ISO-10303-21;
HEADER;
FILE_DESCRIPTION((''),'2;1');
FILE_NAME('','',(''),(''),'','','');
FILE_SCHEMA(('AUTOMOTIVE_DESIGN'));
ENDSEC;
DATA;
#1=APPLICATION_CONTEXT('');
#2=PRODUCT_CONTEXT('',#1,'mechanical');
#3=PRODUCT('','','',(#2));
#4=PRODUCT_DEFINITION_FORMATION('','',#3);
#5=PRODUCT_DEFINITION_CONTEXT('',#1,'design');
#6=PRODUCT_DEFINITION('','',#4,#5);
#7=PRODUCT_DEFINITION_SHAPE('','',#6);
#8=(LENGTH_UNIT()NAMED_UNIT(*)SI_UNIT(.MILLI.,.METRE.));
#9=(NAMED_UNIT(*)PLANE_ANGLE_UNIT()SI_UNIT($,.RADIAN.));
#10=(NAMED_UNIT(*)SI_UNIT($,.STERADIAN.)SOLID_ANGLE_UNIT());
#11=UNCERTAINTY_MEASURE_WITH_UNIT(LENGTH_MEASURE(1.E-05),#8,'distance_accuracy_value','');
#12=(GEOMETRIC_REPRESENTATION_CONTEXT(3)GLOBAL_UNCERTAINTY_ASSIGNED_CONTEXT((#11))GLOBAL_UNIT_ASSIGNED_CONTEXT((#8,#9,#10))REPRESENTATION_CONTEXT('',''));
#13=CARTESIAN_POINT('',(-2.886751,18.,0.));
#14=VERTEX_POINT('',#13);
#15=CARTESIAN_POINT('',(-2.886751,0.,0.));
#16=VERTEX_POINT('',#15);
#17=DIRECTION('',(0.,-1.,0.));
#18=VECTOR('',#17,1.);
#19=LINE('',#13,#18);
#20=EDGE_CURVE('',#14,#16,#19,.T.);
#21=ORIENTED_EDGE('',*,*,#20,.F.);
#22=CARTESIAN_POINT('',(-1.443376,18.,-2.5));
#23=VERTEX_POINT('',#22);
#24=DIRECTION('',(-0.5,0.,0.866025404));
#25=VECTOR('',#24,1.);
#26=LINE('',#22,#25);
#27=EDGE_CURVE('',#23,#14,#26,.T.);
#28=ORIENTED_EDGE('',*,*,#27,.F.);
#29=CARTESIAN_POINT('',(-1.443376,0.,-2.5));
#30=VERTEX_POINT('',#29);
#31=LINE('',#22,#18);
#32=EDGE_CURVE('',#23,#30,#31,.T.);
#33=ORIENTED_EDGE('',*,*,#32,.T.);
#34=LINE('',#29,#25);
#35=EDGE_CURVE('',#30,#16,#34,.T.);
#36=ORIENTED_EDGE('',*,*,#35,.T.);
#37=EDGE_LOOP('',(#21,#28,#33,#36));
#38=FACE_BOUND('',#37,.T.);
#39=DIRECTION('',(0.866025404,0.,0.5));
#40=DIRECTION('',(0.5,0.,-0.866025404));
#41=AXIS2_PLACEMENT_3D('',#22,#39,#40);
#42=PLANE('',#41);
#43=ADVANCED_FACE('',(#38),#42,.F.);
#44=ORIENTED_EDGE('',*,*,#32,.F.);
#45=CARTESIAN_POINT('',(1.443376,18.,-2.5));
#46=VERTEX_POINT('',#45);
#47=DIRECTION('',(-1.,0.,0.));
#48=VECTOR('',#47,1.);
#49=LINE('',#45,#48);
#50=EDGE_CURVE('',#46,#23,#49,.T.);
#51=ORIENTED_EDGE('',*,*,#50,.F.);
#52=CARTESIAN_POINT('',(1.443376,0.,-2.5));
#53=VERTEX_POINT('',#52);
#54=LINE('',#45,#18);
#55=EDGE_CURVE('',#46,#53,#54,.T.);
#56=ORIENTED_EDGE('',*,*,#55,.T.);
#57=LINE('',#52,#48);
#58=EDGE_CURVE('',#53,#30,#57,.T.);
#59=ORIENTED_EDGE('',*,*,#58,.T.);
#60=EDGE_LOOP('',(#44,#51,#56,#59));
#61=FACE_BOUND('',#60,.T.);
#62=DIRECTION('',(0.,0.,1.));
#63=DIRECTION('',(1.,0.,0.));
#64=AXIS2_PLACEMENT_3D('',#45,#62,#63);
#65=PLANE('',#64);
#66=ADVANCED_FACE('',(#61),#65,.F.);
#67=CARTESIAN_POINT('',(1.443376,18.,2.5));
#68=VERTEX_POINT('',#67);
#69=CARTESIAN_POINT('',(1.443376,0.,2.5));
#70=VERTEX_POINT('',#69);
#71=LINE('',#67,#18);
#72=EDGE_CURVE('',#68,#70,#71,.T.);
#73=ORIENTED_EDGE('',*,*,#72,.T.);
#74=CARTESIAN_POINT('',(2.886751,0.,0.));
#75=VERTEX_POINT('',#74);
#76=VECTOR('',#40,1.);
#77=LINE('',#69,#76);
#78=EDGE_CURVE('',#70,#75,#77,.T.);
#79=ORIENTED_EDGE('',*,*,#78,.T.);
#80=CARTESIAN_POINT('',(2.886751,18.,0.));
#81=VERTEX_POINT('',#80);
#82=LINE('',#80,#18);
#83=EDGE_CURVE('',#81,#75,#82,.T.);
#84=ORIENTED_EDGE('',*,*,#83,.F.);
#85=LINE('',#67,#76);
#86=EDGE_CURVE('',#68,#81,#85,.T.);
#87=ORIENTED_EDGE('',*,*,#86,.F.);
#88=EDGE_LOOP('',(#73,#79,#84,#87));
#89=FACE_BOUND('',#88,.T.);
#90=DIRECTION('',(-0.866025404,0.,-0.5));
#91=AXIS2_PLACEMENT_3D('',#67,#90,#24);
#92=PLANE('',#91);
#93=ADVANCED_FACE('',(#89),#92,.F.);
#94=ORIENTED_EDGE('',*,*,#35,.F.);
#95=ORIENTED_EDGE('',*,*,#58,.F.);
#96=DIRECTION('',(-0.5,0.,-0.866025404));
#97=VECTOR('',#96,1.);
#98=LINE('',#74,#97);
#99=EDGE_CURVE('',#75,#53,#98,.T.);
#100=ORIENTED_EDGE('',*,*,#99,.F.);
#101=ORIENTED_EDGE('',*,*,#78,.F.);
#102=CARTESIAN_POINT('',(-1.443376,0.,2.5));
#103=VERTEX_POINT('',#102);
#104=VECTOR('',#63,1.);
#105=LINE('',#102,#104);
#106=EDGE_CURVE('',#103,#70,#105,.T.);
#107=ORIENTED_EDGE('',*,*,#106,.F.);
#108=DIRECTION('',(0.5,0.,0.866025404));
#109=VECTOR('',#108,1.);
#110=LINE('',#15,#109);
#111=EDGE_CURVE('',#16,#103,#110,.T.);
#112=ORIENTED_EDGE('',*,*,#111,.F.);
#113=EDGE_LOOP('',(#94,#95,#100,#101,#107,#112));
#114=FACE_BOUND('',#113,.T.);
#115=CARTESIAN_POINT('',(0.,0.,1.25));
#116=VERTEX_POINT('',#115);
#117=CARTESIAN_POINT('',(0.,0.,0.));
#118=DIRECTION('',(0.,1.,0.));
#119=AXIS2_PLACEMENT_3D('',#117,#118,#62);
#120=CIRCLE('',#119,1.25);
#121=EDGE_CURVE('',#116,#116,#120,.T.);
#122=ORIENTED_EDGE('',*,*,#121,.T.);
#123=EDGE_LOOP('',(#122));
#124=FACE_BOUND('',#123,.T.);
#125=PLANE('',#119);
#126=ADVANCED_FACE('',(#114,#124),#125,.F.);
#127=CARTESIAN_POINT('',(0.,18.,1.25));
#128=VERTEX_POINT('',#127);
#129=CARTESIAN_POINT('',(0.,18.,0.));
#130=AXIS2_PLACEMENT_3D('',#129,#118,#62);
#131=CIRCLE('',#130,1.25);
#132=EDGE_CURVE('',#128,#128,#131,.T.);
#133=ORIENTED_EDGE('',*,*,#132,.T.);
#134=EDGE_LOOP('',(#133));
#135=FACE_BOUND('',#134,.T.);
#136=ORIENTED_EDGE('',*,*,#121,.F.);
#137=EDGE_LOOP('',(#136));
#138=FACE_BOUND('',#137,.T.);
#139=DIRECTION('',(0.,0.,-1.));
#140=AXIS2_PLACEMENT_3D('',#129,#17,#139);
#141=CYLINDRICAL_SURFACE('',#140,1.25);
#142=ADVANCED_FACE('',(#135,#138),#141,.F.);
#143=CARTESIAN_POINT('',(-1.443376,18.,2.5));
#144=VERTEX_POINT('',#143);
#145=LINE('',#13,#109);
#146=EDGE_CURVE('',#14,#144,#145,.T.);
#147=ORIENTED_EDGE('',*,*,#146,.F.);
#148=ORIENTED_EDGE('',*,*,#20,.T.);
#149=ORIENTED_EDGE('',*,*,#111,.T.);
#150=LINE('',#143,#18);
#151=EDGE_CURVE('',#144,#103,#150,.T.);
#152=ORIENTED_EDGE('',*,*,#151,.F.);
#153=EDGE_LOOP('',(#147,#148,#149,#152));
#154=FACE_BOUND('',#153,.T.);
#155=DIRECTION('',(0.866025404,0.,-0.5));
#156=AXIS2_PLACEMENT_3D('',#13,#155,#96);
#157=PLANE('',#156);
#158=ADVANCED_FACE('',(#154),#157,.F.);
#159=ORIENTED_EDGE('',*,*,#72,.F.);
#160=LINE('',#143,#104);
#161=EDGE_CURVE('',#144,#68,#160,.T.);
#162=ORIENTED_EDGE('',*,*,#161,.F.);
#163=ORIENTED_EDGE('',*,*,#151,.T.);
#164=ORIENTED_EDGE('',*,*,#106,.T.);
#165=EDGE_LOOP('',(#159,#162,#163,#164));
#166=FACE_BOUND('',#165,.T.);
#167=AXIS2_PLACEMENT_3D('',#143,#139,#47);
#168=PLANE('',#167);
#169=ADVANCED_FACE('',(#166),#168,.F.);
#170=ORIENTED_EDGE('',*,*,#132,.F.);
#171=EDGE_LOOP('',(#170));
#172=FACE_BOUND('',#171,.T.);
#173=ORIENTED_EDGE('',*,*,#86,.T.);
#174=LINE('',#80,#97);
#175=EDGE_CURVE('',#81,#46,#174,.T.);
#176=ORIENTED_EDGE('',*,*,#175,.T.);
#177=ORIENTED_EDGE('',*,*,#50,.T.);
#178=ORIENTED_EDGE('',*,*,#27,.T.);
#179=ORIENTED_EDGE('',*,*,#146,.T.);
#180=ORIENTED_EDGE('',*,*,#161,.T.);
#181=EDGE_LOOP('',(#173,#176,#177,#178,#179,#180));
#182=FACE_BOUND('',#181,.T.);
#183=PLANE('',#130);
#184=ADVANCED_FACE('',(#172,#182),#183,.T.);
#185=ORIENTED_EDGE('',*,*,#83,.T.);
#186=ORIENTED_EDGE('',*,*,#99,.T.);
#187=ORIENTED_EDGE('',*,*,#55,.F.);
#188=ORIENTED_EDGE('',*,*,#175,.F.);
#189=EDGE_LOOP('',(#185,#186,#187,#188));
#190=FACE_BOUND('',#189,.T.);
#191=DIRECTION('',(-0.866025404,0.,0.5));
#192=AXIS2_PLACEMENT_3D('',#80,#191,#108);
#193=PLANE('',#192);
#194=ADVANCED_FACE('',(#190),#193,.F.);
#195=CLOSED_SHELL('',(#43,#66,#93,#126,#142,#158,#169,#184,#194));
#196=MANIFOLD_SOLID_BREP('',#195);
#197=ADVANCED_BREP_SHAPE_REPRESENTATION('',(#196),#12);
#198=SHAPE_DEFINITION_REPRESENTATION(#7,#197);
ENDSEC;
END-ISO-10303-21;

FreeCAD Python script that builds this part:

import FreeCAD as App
import Part
import Sketcher
from FreeCAD import Vector
Q = App.Units.Quantity


def add_polygon(sketch, points):
    """Adds a closed chain of lines whose ends are joined by coincident constraints."""
    first, n = sketch.GeometryCount, len(points)
    for a, b in zip(points, points[1:] + points[:1]):
        sketch.addGeometry(Part.LineSegment(App.Vector(*a, 0), App.Vector(*b, 0)), False)
    for i in range(n):
        sketch.addConstraint(Sketcher.Constraint("Coincident", first + i, 2, first + (i + 1) % n, 1))

doc = App.newDocument("Part")
body = doc.addObject("PartDesign::Body", "Body")

# Sketch on XZ plane
sketch1 = body.newObject("Sketcher::SketchObject", "Sketch")
sketch1.AttachmentSupport = (doc.getObject("XZ_Plane"), [""])
sketch1.MapMode = "FlatFace"
add_polygon(sketch1, [(1.443376, 2.5), (2.886751, 0), (1.443376, -2.5), (-1.443376, -2.5), (-2.886751, 0), (-1.443376, 2.5)])  # lines 0-5
sketch1.addGeometry(Part.Circle(Vector(0, 0, 0), Vector(0, 0, 1), 1.25), False)  # 6
sketch1.addConstraint(Sketcher.Constraint("Horizontal", 2))
sketch1.addConstraint(Sketcher.Constraint("Horizontal", 5))
sketch1.addConstraint(Sketcher.Constraint("Coincident", 6, 3, -1, 1))
sketch1.addConstraint(Sketcher.Constraint("Symmetric", 0, 2, 3, 2, -1, 1))
sketch1.addConstraint(Sketcher.Constraint("Symmetric", 1, 2, 4, 2, -1, 1))
sketch1.addConstraint(Sketcher.Constraint("PointOnObject", 0, 2, -1))
sketch1.addConstraint(Sketcher.Constraint("Parallel", 0, 3))
sketch1.addConstraint(Sketcher.Constraint("Vertical", 2, 2, 4, 2))
sketch1.addConstraint(Sketcher.Constraint("Diameter", 6, 2.5))
sketch1.addConstraint(Sketcher.Constraint("Angle", 0, Q("-60 deg")))
sketch1.addConstraint(Sketcher.Constraint("DistanceY", 2, 2, 4, 2, 5.0))
sketch1.addConstraint(Sketcher.Constraint("DistanceX", 2, 2, 2, 1, 2.886751))
pad1 = body.newObject("PartDesign::Pad", "Pad")
pad1.Profile = sketch1
pad1.Length = 18
pad1.Reversed = True

doc.recompute()
